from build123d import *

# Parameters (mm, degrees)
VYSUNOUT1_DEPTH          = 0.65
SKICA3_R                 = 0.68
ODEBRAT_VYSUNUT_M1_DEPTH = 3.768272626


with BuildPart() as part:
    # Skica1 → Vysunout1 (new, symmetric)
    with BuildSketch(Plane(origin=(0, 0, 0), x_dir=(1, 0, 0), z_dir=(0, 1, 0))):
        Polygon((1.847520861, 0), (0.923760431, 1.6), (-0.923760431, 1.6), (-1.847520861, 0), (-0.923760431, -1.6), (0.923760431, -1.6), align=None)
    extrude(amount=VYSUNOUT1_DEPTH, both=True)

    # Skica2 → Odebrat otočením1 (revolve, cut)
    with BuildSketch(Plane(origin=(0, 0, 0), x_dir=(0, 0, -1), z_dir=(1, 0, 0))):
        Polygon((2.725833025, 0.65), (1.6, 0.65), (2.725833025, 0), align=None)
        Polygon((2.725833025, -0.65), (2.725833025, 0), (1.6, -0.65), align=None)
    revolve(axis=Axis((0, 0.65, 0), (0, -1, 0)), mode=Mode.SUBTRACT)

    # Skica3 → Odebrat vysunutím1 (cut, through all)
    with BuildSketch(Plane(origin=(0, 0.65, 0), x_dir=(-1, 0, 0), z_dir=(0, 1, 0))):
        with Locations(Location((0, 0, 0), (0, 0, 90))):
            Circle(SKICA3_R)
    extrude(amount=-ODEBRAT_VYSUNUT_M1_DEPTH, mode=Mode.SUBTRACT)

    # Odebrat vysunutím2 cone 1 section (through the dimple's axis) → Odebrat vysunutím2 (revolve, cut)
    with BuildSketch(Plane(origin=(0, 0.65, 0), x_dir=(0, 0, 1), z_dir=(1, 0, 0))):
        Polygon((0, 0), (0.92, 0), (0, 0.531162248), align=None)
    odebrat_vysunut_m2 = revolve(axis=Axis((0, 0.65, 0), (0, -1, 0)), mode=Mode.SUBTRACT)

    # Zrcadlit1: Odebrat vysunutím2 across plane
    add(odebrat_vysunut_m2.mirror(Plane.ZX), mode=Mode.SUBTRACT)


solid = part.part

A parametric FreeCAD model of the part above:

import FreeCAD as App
import Part
import Sketcher
from FreeCAD import Vector
Q = App.Units.Quantity


def add_polygon(sketch, points):
    """Adds a closed chain of lines whose ends are joined by coincident constraints."""
    first, n = sketch.GeometryCount, len(points)
    for a, b in zip(points, points[1:] + points[:1]):
        sketch.addGeometry(Part.LineSegment(App.Vector(*a, 0), App.Vector(*b, 0)), False)
    for i in range(n):
        sketch.addConstraint(Sketcher.Constraint("Coincident", first + i, 2, first + (i + 1) % n, 1))

doc = App.newDocument("Part")
body = doc.addObject("PartDesign::Body", "Body")

# Sketch on XZ plane
sketch1 = body.newObject("Sketcher::SketchObject", "Sketch")
sketch1.AttachmentSupport = (doc.getObject("XZ_Plane"), [""])
sketch1.MapMode = "FlatFace"
add_polygon(sketch1, [(1.8, 0), (0.9, -1.6), (-0.9, -1.6), (-1.8, 0), (-0.9, 1.6), (0.9, 1.6)])  # lines 0-5
sketch1.addConstraint(Sketcher.Constraint("Horizontal", 1))
sketch1.addConstraint(Sketcher.Constraint("Horizontal", 4))
sketch1.addConstraint(Sketcher.Constraint("Symmetric", 0, 2, 3, 2, -1, 1))
sketch1.addConstraint(Sketcher.Constraint("Symmetric", 2, 2, 5, 2, -1, 1))
sketch1.addConstraint(Sketcher.Constraint("PointOnObject", 2, 2, -1))
sketch1.addConstraint(Sketcher.Constraint("Parallel", 2, 5))
sketch1.addConstraint(Sketcher.Constraint("Vertical", 1, 2, 3, 2))
sketch1.addConstraint(Sketcher.Constraint("Angle", 0, Q("-120 deg")))
sketch1.addConstraint(Sketcher.Constraint("DistanceY", 0, 2, -1, 1, Q("1.6 mm")))
sketch1.addConstraint(Sketcher.Constraint("DistanceX", 1, 2, 1, 1, Q("1.847521 mm")))
pad1 = body.newObject("PartDesign::Pad", "Pad")
pad1.Profile = sketch1
pad1.Length = 1.3
pad1.Midplane = True

# Sketch on YZ plane
sketch2 = body.newObject("Sketcher::SketchObject", "Sketch001")
sketch2.AttachmentSupport = (doc.getObject("YZ_Plane"), [""])
sketch2.MapMode = "FlatFace"
add_polygon(sketch2, [(0.7, -2.7), (0.7, -1.6), (0, -2.7)])  # lines 0-2
add_polygon(sketch2, [(-0.7, -2.7), (0, -2.7), (-0.7, -1.6)])  # lines 3-5
sketch2.addConstraint(Sketcher.Constraint("Vertical", 0))
sketch2.addConstraint(Sketcher.Constraint("Horizontal", 2))
sketch2.addConstraint(Sketcher.Constraint("Horizontal", 3))
sketch2.addConstraint(Sketcher.Constraint("Vertical", 5))
sketch2.addConstraint(Sketcher.Constraint("Coincident", 3, 2, 1, 2))
sketch2.addConstraint(Sketcher.Constraint("Symmetric", 0, 2, 4, 2, -2))
sketch2.addConstraint(Sketcher.Constraint("PointOnObject", 1, 2, -2))
sketch2.addConstraint(Sketcher.Constraint("Angle", 1, Q("-120 deg")))
sketch2.addConstraint(Sketcher.Constraint("Distance", 1, Q("1.3 mm")))
sketch2.addConstraint(Sketcher.Constraint("DistanceY", 0, 2, -1, 1, Q("1.6 mm")))
groove = body.newObject("PartDesign::Groove", "Groove")
groove.Profile = sketch2
groove.ReferenceAxis = (sketch2, ["H_Axis"])
groove.Angle = 360

# Sketch on XZ plane
sketch3 = body.newObject("Sketcher::SketchObject", "Sketch002")
sketch3.AttachmentSupport = (doc.getObject("XZ_Plane"), [""])
sketch3.MapMode = "FlatFace"
sketch3.AttachmentOffset = App.Placement(Vector(0, 0, -0.65), App.Rotation())
sketch3.addGeometry(Part.Circle(Vector(0, 0, 0), Vector(0, 0, 1), 0.7), False)
sketch3.addConstraint(Sketcher.Constraint("Coincident", 0, 3, -1, 1))
sketch3.addConstraint(Sketcher.Constraint("Diameter", 0, Q("1.36 mm")))
pocket1 = body.newObject("PartDesign::Pocket", "Pocket")
pocket1.Profile = sketch3
pocket1.Type = "ThroughAll"
pocket1.Reversed = True

# Sketch on YZ plane
sketch4 = body.newObject("Sketcher::SketchObject", "Sketch003")
sketch4.AttachmentSupport = (doc.getObject("YZ_Plane"), [""])
sketch4.MapMode = "FlatFace"
add_polygon(sketch4, [(0.7, 0), (0.7, 0.9), (0.1, 0)])  # lines 0-2
sketch4.addConstraint(Sketcher.Constraint("Vertical", 0))
sketch4.addConstraint(Sketcher.Constraint("Horizontal", 2))
sketch4.addConstraint(Sketcher.Constraint("PointOnObject", 1, 2, -1))
sketch4.addConstraint(Sketcher.Constraint("Angle", 1, Q("-120 deg")))
sketch4.addConstraint(Sketcher.Constraint("DistanceY", 0, 1, 0, 2, Q("0.92 mm")))
sketch4.addConstraint(Sketcher.Constraint("DistanceX", -1, 1, 0, 2, Q("0.65 mm")))
groove2 = body.newObject("PartDesign::Groove", "Groove001")
groove2.Profile = sketch4
groove2.ReferenceAxis = (sketch4, ["H_Axis"])
groove2.Angle = 360
doc.recompute()

mirrored = body.newObject("PartDesign::Mirrored", "Mirrored")
mirrored.Originals = [groove2]
mirrored.MirrorPlane = (doc.getObject("XZ_Plane"), [""])
body.Tip = mirrored

doc.recompute()
